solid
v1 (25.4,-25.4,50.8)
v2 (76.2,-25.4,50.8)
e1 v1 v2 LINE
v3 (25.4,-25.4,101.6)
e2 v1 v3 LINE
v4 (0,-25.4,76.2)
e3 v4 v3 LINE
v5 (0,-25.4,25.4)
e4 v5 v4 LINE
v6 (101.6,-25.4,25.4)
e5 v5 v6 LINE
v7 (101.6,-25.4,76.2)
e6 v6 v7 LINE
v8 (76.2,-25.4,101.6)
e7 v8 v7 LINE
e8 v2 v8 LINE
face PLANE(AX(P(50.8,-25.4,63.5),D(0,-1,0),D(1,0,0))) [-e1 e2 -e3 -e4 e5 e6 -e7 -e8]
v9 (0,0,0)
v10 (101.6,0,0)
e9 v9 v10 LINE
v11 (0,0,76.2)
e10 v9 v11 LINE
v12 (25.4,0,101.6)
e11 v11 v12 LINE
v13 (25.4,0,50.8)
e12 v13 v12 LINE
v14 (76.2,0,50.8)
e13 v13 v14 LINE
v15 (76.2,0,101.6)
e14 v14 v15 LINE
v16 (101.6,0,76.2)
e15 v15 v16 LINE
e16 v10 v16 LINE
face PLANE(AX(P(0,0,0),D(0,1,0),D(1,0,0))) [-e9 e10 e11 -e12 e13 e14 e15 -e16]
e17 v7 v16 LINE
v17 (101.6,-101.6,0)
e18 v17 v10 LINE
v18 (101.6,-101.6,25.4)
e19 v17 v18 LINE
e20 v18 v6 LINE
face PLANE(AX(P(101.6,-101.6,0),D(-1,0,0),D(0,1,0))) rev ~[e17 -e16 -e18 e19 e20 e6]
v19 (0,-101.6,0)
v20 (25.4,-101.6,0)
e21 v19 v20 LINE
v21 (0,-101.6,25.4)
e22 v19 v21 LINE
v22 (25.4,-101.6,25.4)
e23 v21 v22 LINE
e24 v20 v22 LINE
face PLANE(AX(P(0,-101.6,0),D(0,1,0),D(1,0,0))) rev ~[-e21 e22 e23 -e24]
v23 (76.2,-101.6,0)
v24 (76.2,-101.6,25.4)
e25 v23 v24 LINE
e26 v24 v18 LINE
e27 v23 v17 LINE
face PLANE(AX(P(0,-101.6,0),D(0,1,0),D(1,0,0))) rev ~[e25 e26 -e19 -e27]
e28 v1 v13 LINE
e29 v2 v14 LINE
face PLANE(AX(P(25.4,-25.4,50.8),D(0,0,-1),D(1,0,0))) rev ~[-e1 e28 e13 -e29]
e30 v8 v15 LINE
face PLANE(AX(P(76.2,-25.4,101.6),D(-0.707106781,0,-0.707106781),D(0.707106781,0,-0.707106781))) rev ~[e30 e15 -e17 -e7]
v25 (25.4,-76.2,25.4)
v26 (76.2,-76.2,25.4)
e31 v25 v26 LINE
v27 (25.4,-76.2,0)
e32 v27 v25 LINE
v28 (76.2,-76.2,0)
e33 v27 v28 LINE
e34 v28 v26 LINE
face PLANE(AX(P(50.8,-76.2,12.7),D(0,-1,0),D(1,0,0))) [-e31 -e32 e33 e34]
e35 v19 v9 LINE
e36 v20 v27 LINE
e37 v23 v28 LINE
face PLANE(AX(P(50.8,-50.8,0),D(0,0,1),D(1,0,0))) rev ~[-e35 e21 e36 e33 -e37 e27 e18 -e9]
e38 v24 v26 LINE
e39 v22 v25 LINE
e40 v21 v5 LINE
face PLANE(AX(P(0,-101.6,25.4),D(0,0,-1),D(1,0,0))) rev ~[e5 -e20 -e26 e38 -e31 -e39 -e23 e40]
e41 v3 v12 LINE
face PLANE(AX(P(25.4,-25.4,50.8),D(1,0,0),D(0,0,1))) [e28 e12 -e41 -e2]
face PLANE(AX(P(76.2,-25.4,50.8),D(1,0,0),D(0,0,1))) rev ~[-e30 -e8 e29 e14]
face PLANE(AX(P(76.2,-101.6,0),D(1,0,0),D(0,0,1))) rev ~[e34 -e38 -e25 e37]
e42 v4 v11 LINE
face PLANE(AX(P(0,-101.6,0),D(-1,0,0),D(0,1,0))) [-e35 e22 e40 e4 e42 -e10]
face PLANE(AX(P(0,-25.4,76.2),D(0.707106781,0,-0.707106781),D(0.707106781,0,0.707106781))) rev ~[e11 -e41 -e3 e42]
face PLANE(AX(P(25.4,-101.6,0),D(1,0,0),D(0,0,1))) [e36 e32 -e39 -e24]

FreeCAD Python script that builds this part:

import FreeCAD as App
import Part
import Sketcher
from FreeCAD import Vector
Q = App.Units.Quantity

doc = App.newDocument("Part")
body = doc.addObject("PartDesign::Body", "Body")

sketch1 = body.newObject("Sketcher::SketchObject", "Sketch")
sketch1.AttachmentSupport = (doc.getObject("XY_Plane"), [""])
sketch1.MapMode = "FlatFace"
sketch1.addGeometry([
    Part.LineSegment(Vector(0, 0, 0), Vector(0, -102, 0)),
    Part.LineSegment(Vector(0, -102, 0), Vector(102, -102, 0)),
    Part.LineSegment(Vector(102, -102, 0), Vector(102, 0, 0)),
    Part.LineSegment(Vector(102, 0, 0), Vector(0, 0, 0)),
], False)
sketch1.addConstraint([
    Sketcher.Constraint("Coincident", 0, 2, 1, 1),
    Sketcher.Constraint("Coincident", 1, 2, 2, 1),
    Sketcher.Constraint("Coincident", 2, 2, 3, 1),
    Sketcher.Constraint("Coincident", 3, 2, 0, 1),
    Sketcher.Constraint("Vertical", 0),
    Sketcher.Constraint("Horizontal", 1),
    Sketcher.Constraint("Vertical", 2),
    Sketcher.Constraint("Horizontal", 3),
    Sketcher.Constraint("Coincident", 3, 2, -1, 1),
    Sketcher.Constraint("Equal", 3, 0),
    Sketcher.Constraint("DistanceX", 1, 1, 1, 2, Q("4 in")),
])
pad1 = body.newObject("PartDesign::Pad", "Pad")
pad1.Profile = sketch1
pad1.Length = Q("4 in")

sketch2 = body.newObject("Sketcher::SketchObject", "Sketch001")
sketch2.AttachmentSupport = (doc.getObject("XZ_Plane"), [""])
sketch2.MapMode = "FlatFace"
sketch2.AttachmentOffset = App.Placement(Vector(0, 0, 4 * 25.4), App.Rotation())
sketch2.addGeometry([
    Part.LineSegment(Vector(0, 102, 0), Vector(0, 25, 0)),
    Part.LineSegment(Vector(0, 25, 0), Vector(102, 25, 0)),
    Part.LineSegment(Vector(102, 25, 0), Vector(102, 102, 0)),
    Part.LineSegment(Vector(102, 102, 0), Vector(0, 102, 0)),
], False)
sketch2.addConstraint([
    Sketcher.Constraint("Coincident", 0, 2, 1, 1),
    Sketcher.Constraint("Coincident", 1, 2, 2, 1),
    Sketcher.Constraint("Coincident", 2, 2, 3, 1),
    Sketcher.Constraint("Coincident", 3, 2, 0, 1),
    Sketcher.Constraint("Vertical", 0),
    Sketcher.Constraint("Horizontal", 1),
    Sketcher.Constraint("Vertical", 2),
    Sketcher.Constraint("Horizontal", 3),
    Sketcher.Constraint("PointOnObject", 0, 2, -2),
    Sketcher.Constraint("DistanceX", 1, 1, 1, 2, Q("4 in")),
    Sketcher.Constraint("DistanceY", 0, 2, 0, 1, Q("3 in")),
    Sketcher.Constraint("DistanceY", -1, 1, 0, 2, Q("1 in")),
])
pocket1 = body.newObject("PartDesign::Pocket", "Pocket")
pocket1.Profile = sketch2
pocket1.Length = Q("3 in")

sketch3 = body.newObject("Sketcher::SketchObject", "Sketch002")
sketch3.AttachmentSupport = (doc.getObject("XZ_Plane"), [""])
sketch3.MapMode = "FlatFace"
sketch3.AttachmentOffset = App.Placement(Vector(0, 0, 4 * 25.4), App.Rotation())
sketch3.addGeometry([
    Part.LineSegment(Vector(25, 25, 0), Vector(25, 0, 0)),
    Part.LineSegment(Vector(25, 0, 0), Vector(76, 0, 0)),
    Part.LineSegment(Vector(76, 0, 0), Vector(76, 25, 0)),
    Part.LineSegment(Vector(76, 25, 0), Vector(25, 25, 0)),
], False)
sketch3.addConstraint([
    Sketcher.Constraint("Coincident", 0, 2, 1, 1),
    Sketcher.Constraint("Coincident", 1, 2, 2, 1),
    Sketcher.Constraint("Coincident", 2, 2, 3, 1),
    Sketcher.Constraint("Coincident", 3, 2, 0, 1),
    Sketcher.Constraint("Vertical", 0),
    Sketcher.Constraint("Horizontal", 1),
    Sketcher.Constraint("Vertical", 2),
    Sketcher.Constraint("Horizontal", 3),
    Sketcher.Constraint("PointOnObject", 0, 2, -1),
    Sketcher.Constraint("DistanceX", 1, 1, 1, 2, Q("2 in")),
    Sketcher.Constraint("DistanceY", 0, 2, 0, 1, Q("1 in")),
    Sketcher.Constraint("DistanceX", -1, 1, 0, 2, Q("1 in")),
])
pocket2 = body.newObject("PartDesign::Pocket", "Pocket001")
pocket2.Profile = sketch3
pocket2.Length = Q("1 in")

sketch4 = body.newObject("Sketcher::SketchObject", "Sketch003")
sketch4.AttachmentSupport = (doc.getObject("XZ_Plane"), [""])
sketch4.MapMode = "FlatFace"
sketch4.AttachmentOffset = App.Placement(Vector(0, 0, 1 * 25.4), App.Rotation())
sketch4.addGeometry([
    Part.LineSegment(Vector(25, 102, 0), Vector(25, 51, 0)),
    Part.LineSegment(Vector(25, 51, 0), Vector(76, 51, 0)),
    Part.LineSegment(Vector(76, 51, 0), Vector(76, 102, 0)),
    Part.LineSegment(Vector(76, 102, 0), Vector(25, 102, 0)),
], False)
sketch4.addConstraint([
    Sketcher.Constraint("Coincident", 0, 2, 1, 1),
    Sketcher.Constraint("Coincident", 1, 2, 2, 1),
    Sketcher.Constraint("Coincident", 2, 2, 3, 1),
    Sketcher.Constraint("Coincident", 3, 2, 0, 1),
    Sketcher.Constraint("Vertical", 0),
    Sketcher.Constraint("Horizontal", 1),
    Sketcher.Constraint("Vertical", 2),
    Sketcher.Constraint("Horizontal", 3),
    Sketcher.Constraint("Equal", 3, 0),
    Sketcher.Constraint("DistanceX", 1, 1, 1, 2, Q("2 in")),
    Sketcher.Constraint("DistanceX", -1, 1, 0, 2, Q("1 in")),
    Sketcher.Constraint("DistanceY", -1, 1, 0, 2, Q("2 in")),
])
pocket3 = body.newObject("PartDesign::Pocket", "Pocket002")
pocket3.Profile = sketch4
pocket3.Length = Q("1 in")

sketch5 = body.newObject("Sketcher::SketchObject", "Sketch004")
sketch5.AttachmentSupport = (doc.getObject("XZ_Plane"), [""])
sketch5.MapMode = "FlatFace"
sketch5.AttachmentOffset = App.Placement(Vector(0, 0, 1 * 25.4), App.Rotation())
sketch5.addGeometry([
    Part.LineSegment(Vector(25, 102, 0), Vector(0, 102, 0)),
    Part.LineSegment(Vector(0, 102, 0), Vector(0, 76, 0)),
    Part.LineSegment(Vector(0, 76, 0), Vector(25, 102, 0)),
    Part.LineSegment(Vector(102, 76, 0), Vector(102, 102, 0)),
    Part.LineSegment(Vector(102, 102, 0), Vector(76, 102, 0)),
    Part.LineSegment(Vector(76, 102, 0), Vector(102, 76, 0)),
], False)
sketch5.addConstraint([
    Sketcher.Constraint("Coincident", 0, 2, 1, 1),
    Sketcher.Constraint("Coincident", 1, 2, 2, 1),
    Sketcher.Constraint("Coincident", 2, 2, 0, 1),
    Sketcher.Constraint("Coincident", 3, 2, 4, 1),
    Sketcher.Constraint("Coincident", 4, 2, 5, 1),
    Sketcher.Constraint("Coincident", 5, 2, 3, 1),
    Sketcher.Constraint("Horizontal", 0),
    Sketcher.Constraint("Vertical", 1),
    Sketcher.Constraint("Vertical", 3),
    Sketcher.Constraint("Horizontal", 4),
    Sketcher.Constraint("PointOnObject", 0, 2, -2),
    Sketcher.Constraint("Perpendicular", 2, 5),
    Sketcher.Constraint("Horizontal", 2, 2, 3, 2),
    Sketcher.Constraint("Horizontal", 1, 2, 5, 2),
    Sketcher.Constraint("Equal", 0, 4),
    Sketcher.Constraint("DistanceX", 0, 2, 0, 1, Q("1 in")),
    Sketcher.Constraint("DistanceY", -1, 1, 0, 2, Q("4 in")),
    Sketcher.Constraint("DistanceX", -1, 1, 3, 2, Q("4 in")),
])
pocket4 = body.newObject("PartDesign::Pocket", "Pocket003")
pocket4.Profile = sketch5
pocket4.Length = Q("1 in")

doc.recompute()
